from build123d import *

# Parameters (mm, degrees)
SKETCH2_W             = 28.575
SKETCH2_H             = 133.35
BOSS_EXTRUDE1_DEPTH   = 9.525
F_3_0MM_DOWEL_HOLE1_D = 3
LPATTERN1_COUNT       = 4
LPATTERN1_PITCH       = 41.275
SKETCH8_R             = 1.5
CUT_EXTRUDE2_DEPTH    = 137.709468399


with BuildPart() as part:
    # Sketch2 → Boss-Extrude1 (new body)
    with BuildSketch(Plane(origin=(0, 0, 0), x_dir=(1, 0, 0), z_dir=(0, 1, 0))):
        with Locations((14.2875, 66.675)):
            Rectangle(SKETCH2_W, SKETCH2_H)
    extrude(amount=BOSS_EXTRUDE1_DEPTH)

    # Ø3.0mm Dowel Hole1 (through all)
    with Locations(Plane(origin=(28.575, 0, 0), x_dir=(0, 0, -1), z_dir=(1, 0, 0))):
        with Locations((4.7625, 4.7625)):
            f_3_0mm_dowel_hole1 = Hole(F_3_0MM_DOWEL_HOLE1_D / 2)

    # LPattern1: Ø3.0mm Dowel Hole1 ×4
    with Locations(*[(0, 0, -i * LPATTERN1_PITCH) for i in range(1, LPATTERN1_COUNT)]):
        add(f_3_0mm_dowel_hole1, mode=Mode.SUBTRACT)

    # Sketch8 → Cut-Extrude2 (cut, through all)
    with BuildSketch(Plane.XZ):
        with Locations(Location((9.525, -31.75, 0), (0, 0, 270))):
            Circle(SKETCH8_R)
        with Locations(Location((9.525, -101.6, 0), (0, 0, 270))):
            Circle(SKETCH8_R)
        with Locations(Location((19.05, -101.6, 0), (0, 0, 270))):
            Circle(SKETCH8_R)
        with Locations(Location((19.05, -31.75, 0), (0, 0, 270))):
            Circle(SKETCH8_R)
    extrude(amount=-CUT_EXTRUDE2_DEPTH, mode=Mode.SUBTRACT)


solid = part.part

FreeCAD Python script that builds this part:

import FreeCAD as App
import Part
import Sketcher

V = App.Vector
Q = App.Units.Quantity


def add_polygon(sketch, points):
    """Adds a closed chain of lines whose ends are joined by coincident constraints."""
    first, n = sketch.GeometryCount, len(points)
    for a, b in zip(points, points[1:] + points[:1]):
        sketch.addGeometry(Part.LineSegment(App.Vector(*a, 0), App.Vector(*b, 0)), False)
    for i in range(n):
        sketch.addConstraint(Sketcher.Constraint("Coincident", first + i, 2, first + (i + 1) % n, 1))

doc = App.newDocument("Part")
body = doc.addObject("PartDesign::Body", "Body")

# Sketch on XZ plane
sketch1 = body.newObject("Sketcher::SketchObject", "Sketch")
sketch1.AttachmentSupport = (doc.getObject("XZ_Plane"), [""])
sketch1.MapMode = "FlatFace"
add_polygon(sketch1, [(0, -133), (0, 0), (29, 0), (29, -133)])  # lines 0-3
sketch1.addConstraint([
    Sketcher.Constraint("Vertical", 0),
    Sketcher.Constraint("Horizontal", 1),
    Sketcher.Constraint("Vertical", 2),
    Sketcher.Constraint("Horizontal", 3),
    Sketcher.Constraint("Coincident", 0, 2, -1, 1),
    Sketcher.Constraint("DistanceY", 0, 1, 0, 2, Q("5.25 in")),
    Sketcher.Constraint("DistanceX", 1, 1, 1, 2, Q("1.125 in")),
])
pad1 = body.newObject("PartDesign::Pad", "Pad")
pad1.Profile = sketch1
pad1.Length = Q("0.375 in")
pad1.Reversed = True

# Sketch on YZ plane
sketch2 = body.newObject("Sketcher::SketchObject", "Sketch001")
sketch2.AttachmentSupport = (doc.getObject("YZ_Plane"), [""])
sketch2.MapMode = "FlatFace"
sketch2.AttachmentOffset = App.Placement(V(0, 0, 1.125 * 25.4), App.Rotation())
sketch2.addGeometry(Part.Circle(V(4.8, -4.8, 0), V(0, 0, 1), 1.5), False)
sketch2.addConstraint([
    Sketcher.Constraint("Diameter", 0, 3.0),
    Sketcher.Constraint("DistanceX", -1, 1, 0, 3, Q("0.1875 in")),
    Sketcher.Constraint("DistanceY", 0, 3, -1, 1, Q("0.1875 in")),
])
doc.recompute()
hole = body.newObject("PartDesign::Hole", "Hole")
hole.Profile = sketch2
hole.ThreadType = "None"
hole.Diameter = 3
hole.DepthType = "ThroughAll"
doc.recompute()

linearpattern = body.newObject("PartDesign::LinearPattern", "LinearPattern")
linearpattern.Originals = [hole]
linearpattern.Direction = (doc.getObject("Z_Axis"), [""])
linearpattern.Mode = "offset"
linearpattern.Offset = Q("1.625 in")
linearpattern.Occurrences = 4
linearpattern.Reversed = True
body.Tip = linearpattern

# Sketch on XZ plane
sketch3 = body.newObject("Sketcher::SketchObject", "Sketch002")
sketch3.AttachmentSupport = (doc.getObject("XZ_Plane"), [""])
sketch3.MapMode = "FlatFace"
sketch3.addGeometry([
    Part.Circle(V(9.5, -31.8, 0), V(0, 0, 1), 1.5),
    Part.Circle(V(9.5, -101.6, 0), V(0, 0, 1), 1.5),
    Part.Circle(V(19.1, -101.6, 0), V(0, 0, 1), 1.5),
    Part.Circle(V(19.1, -31.8, 0), V(0, 0, 1), 1.5),
], False)
sketch3.addConstraint([
    Sketcher.Constraint("Equal", 0, 1),
    Sketcher.Constraint("Equal", 1, 2),
    Sketcher.Constraint("Equal", 2, 3),
    Sketcher.Constraint("Horizontal", 1, 3, 2, 3),
    Sketcher.Constraint("Horizontal", 0, 3, 3, 3),
    Sketcher.Constraint("Vertical", 0, 3, 1, 3),
    Sketcher.Constraint("Vertical", 2, 3, 3, 3),
    Sketcher.Constraint("DistanceY", 1, 3, -1, 1, Q("4 in")),
    Sketcher.Constraint("Diameter", 0, 3.0),
    Sketcher.Constraint("DistanceY", 0, 3, -1, 1, Q("1.25 in")),
    Sketcher.Constraint("DistanceX", -1, 1, 2, 3, Q("0.75 in")),
    Sketcher.Constraint("DistanceX", -1, 1, 0, 3, Q("0.375 in")),
])
pocket1 = body.newObject("PartDesign::Pocket", "Pocket")
pocket1.Profile = sketch3
pocket1.Type = "ThroughAll"

doc.recompute()
